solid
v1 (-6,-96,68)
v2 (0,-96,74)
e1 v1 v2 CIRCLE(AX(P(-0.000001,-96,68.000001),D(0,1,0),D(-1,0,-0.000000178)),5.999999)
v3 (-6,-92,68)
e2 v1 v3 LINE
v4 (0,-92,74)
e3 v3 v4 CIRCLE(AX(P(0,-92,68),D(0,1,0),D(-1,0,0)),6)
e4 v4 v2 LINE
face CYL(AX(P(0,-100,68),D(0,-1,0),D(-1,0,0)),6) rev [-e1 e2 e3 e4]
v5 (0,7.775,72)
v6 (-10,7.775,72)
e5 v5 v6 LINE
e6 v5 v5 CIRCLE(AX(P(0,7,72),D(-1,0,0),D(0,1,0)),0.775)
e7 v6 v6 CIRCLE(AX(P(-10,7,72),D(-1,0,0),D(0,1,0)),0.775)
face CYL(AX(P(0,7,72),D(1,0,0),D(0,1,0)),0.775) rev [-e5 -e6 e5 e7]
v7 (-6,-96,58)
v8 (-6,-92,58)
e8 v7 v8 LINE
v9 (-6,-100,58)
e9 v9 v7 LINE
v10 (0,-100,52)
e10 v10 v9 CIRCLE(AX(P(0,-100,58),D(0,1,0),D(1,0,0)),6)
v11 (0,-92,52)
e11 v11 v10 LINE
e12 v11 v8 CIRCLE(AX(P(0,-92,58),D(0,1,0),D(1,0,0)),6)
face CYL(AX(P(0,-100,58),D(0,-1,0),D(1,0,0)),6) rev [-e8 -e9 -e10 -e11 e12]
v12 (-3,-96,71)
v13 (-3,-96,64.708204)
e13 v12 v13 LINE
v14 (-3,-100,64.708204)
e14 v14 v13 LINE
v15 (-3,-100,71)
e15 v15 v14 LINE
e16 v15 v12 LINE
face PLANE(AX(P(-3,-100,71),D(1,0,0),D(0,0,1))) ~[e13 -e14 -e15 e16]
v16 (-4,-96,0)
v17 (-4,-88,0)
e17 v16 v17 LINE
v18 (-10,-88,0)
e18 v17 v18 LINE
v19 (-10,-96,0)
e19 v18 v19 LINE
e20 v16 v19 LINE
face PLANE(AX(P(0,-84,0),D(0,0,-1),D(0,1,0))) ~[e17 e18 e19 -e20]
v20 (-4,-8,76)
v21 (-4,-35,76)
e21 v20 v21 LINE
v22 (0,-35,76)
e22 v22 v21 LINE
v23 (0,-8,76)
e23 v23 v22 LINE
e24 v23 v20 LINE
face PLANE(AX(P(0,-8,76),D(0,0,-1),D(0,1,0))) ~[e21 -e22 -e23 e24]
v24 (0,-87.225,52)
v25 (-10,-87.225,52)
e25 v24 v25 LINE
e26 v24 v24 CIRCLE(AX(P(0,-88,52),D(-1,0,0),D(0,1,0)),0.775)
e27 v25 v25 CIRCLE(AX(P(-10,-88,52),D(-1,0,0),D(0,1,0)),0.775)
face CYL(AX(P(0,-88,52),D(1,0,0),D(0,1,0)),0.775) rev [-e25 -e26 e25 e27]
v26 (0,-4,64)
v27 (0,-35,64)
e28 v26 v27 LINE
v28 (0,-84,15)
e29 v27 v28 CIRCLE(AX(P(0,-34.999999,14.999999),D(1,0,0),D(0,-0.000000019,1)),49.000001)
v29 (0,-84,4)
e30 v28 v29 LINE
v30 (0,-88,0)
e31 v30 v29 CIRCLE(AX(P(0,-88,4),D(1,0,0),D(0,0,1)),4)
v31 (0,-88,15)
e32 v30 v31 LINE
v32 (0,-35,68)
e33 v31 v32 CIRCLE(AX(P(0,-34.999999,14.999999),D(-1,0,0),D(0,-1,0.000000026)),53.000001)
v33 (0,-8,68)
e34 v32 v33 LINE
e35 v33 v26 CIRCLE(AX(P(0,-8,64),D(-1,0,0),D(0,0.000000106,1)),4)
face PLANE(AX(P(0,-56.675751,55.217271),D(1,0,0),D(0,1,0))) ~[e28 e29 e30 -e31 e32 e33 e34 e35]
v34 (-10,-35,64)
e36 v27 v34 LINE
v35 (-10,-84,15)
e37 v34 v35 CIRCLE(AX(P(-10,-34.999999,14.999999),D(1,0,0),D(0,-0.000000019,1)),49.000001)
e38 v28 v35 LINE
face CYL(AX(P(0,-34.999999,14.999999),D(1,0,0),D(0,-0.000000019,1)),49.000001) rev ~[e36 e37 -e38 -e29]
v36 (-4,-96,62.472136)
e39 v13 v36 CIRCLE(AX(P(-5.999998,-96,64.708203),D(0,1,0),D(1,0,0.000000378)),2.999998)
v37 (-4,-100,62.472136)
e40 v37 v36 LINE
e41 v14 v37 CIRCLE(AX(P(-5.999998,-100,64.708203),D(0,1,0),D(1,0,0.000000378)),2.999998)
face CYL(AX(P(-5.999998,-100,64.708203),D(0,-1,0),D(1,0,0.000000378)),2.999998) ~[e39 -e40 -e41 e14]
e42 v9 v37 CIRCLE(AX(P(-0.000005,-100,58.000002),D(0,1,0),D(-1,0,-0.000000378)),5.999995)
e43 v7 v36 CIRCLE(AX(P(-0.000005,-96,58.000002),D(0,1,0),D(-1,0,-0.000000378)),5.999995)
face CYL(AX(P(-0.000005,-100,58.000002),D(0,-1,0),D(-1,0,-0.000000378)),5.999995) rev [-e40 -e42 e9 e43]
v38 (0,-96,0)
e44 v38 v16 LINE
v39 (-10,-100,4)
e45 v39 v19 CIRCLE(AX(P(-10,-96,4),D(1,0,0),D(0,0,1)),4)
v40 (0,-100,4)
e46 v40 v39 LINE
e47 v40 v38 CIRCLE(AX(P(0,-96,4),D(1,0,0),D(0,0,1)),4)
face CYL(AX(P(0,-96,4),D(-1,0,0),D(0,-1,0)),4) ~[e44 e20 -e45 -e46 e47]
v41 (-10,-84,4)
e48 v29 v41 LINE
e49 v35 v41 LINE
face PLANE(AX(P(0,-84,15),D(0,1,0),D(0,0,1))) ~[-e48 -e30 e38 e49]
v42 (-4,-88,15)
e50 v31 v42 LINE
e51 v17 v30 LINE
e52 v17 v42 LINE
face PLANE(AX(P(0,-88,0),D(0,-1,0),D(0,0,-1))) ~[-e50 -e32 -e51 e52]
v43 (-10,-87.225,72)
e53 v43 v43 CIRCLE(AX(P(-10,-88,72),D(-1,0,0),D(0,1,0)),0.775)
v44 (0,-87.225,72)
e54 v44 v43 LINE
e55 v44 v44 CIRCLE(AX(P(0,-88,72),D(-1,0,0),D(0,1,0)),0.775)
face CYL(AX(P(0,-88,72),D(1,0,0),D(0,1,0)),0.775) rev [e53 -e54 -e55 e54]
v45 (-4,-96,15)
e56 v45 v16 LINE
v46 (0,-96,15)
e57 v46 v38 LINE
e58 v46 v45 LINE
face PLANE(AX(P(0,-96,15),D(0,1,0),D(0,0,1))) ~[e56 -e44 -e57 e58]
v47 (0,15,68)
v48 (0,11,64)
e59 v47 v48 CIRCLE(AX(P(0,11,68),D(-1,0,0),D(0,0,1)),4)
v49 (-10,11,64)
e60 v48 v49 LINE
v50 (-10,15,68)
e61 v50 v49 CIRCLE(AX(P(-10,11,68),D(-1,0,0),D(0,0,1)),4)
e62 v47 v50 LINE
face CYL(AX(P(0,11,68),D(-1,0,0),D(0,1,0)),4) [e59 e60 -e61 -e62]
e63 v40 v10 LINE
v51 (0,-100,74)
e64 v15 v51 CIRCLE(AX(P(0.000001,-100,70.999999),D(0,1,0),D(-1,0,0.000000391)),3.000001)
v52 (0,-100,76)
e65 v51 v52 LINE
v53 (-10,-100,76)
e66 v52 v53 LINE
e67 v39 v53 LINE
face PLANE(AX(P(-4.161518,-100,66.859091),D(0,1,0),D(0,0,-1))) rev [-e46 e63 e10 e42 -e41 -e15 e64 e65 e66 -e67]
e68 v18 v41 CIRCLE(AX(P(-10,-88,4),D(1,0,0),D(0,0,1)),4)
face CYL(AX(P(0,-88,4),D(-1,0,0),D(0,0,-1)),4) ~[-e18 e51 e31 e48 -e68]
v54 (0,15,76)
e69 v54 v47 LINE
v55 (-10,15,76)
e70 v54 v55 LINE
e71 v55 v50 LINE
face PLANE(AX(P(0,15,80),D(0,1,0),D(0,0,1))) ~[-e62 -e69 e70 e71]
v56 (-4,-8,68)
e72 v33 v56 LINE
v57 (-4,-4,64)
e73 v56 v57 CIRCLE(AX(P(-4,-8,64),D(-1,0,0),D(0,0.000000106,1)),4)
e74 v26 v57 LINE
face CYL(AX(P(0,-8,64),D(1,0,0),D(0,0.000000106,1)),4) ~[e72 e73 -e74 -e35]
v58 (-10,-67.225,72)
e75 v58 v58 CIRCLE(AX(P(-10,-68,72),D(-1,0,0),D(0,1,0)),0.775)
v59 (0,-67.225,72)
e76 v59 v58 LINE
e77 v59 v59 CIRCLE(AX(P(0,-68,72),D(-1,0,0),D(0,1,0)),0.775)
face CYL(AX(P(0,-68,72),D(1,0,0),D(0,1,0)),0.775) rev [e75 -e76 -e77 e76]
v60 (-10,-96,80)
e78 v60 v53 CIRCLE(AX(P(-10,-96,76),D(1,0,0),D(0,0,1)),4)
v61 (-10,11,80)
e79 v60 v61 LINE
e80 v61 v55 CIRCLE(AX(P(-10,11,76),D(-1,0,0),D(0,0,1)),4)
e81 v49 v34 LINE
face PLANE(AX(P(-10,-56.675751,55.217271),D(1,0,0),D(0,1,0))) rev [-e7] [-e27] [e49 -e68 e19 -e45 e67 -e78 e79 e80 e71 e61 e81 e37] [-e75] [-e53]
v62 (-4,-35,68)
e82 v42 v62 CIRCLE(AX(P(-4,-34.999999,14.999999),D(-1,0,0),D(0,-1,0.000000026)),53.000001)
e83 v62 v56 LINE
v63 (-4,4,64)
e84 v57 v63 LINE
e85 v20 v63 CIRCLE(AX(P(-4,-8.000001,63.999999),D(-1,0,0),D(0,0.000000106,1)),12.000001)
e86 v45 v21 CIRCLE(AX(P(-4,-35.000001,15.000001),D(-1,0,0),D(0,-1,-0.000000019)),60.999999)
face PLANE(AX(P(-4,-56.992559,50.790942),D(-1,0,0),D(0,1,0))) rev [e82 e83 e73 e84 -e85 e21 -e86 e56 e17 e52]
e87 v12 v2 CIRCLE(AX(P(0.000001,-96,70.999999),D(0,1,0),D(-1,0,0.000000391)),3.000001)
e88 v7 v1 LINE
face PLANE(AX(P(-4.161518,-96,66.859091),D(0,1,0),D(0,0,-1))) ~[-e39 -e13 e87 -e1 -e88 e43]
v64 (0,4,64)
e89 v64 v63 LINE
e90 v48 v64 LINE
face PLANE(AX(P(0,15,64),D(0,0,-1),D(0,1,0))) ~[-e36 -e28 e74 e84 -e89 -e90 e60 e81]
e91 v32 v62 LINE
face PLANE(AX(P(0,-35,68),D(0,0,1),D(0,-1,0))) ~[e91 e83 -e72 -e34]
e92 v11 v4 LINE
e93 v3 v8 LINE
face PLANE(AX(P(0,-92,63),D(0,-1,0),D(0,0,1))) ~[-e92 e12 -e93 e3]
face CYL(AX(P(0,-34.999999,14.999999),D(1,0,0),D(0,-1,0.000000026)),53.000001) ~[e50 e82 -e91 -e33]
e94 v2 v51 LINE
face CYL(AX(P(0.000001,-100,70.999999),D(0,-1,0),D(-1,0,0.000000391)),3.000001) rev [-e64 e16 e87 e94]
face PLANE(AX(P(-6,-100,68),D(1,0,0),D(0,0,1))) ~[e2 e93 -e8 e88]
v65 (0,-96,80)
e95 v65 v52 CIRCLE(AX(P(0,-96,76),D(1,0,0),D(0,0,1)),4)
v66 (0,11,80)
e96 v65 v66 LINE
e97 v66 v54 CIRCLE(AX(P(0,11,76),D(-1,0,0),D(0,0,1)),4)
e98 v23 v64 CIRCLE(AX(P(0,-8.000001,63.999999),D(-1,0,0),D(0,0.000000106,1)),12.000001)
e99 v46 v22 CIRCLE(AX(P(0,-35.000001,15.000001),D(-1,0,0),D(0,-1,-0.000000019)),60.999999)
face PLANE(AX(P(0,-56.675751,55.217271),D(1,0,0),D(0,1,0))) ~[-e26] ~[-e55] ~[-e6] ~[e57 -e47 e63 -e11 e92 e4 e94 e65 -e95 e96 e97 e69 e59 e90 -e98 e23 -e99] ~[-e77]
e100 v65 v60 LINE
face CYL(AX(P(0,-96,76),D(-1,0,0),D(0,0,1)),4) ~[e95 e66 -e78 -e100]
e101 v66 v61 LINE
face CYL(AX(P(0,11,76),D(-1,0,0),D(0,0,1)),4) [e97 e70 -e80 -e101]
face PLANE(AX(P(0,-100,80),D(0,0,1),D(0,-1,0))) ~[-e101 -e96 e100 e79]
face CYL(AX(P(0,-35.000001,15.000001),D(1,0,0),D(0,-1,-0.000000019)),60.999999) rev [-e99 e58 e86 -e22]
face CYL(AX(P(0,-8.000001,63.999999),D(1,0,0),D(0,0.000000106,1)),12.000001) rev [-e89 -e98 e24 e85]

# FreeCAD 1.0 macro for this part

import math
import FreeCAD as App
import Part
import Sketcher


def edges_at(feature, points):
    """Names of the edges that pass closest to the given points."""
    edges = feature.Shape.Edges
    near = lambda p: min(range(len(edges)), key=lambda i: edges[i].distToShape(Part.Vertex(*p))[0])
    return sorted({f"Edge{near(p) + 1}" for p in points})

doc = App.newDocument("Part")
body = doc.addObject("PartDesign::Body", "Body")

sketch1 = body.newObject("Sketcher::SketchObject", "Sketch")
sketch1.AttachmentSupport = (doc.getObject("YZ_Plane"), [""])
sketch1.MapMode = "FlatFace"
sketch1.addGeometry([
    Part.LineSegment(App.Vector(15, 80, 0), App.Vector(-100, 80, 0)),
    Part.LineSegment(App.Vector(-100, 80, 0), App.Vector(-100, 0, 0)),
    Part.LineSegment(App.Vector(-100, 0, 0), App.Vector(-84, 0, 0)),
    Part.LineSegment(App.Vector(-84, 0, 0), App.Vector(-84, 15, 0)),
    Part.ArcOfCircle(Part.Circle(App.Vector(-34.999999, 14.999999, 0), App.Vector(0, 0, 1), 49.000001), math.radians(90.000001), math.radians(179.999999)),
    Part.LineSegment(App.Vector(-35, 64, 0), App.Vector(15, 64, 0)),
    Part.LineSegment(App.Vector(15, 64, 0), App.Vector(15, 80, 0)),
], False)
sketch1.addConstraint([
    Sketcher.Constraint("Coincident", 0, 2, 1, 1),
    Sketcher.Constraint("Coincident", 1, 2, 2, 1),
    Sketcher.Constraint("Coincident", 2, 2, 3, 1),
    Sketcher.Constraint("Tangent", 3, 2, 4, 2),
    Sketcher.Constraint("Tangent", 4, 1, 5, 1),
    Sketcher.Constraint("Coincident", 5, 2, 6, 1),
    Sketcher.Constraint("Coincident", 6, 2, 0, 1),
    Sketcher.Constraint("Horizontal", 0),
    Sketcher.Constraint("Vertical", 1),
    Sketcher.Constraint("Horizontal", 2),
    Sketcher.Constraint("Vertical", 3),
    Sketcher.Constraint("Horizontal", 5),
    Sketcher.Constraint("Vertical", 6),
    Sketcher.Constraint("PointOnObject", 1, 2, -1),
    Sketcher.Constraint("Equal", 2, 6),
    Sketcher.Constraint("Radius", 4, 49.000001),
    Sketcher.Constraint("DistanceX", 0, 2, 0, 1, 115.0),
    Sketcher.Constraint("DistanceX", 2, 1, 2, 2, 16.0),
    Sketcher.Constraint("DistanceY", 1, 2, 1, 1, 80.0),
    Sketcher.Constraint("DistanceX", 4, 3, -1, 1, 34.999999),
])
pad1 = body.newObject("PartDesign::Pad", "Pad")
pad1.Profile = sketch1
pad1.Length = 10

sketch2 = body.newObject("Sketcher::SketchObject", "Sketch001")
sketch2.AttachmentSupport = (doc.getObject("YZ_Plane"), [""])
sketch2.MapMode = "FlatFace"
sketch2.addGeometry([
    Part.LineSegment(App.Vector(-88, 15, 0), App.Vector(-88, 0, 0)),
    Part.LineSegment(App.Vector(-88, 0, 0), App.Vector(-96, 0, 0)),
    Part.LineSegment(App.Vector(-96, 0, 0), App.Vector(-96, 15, 0)),
    Part.ArcOfCircle(Part.Circle(App.Vector(-35.000001, 15.000001, 0), App.Vector(0, 0, 1), 60.999999), math.radians(89.999999), math.radians(180.000001)),
    Part.LineSegment(App.Vector(-35, 76, 0), App.Vector(-8, 76, 0)),
    Part.ArcOfCircle(Part.Circle(App.Vector(-8.000001, 63.999999, 0), App.Vector(0, 0, 1), 12.000001), math.radians(0.000006), math.radians(89.999994)),
    Part.LineSegment(App.Vector(4, 64, 0), App.Vector(-4, 64, 0)),
    Part.ArcOfCircle(Part.Circle(App.Vector(-8, 64, 0), App.Vector(0, 0, 1), 4), math.radians(0.000006), math.radians(89.999994)),
    Part.LineSegment(App.Vector(-8, 68, 0), App.Vector(-35, 68, 0)),
    Part.ArcOfCircle(Part.Circle(App.Vector(-34.999999, 14.999999, 0), App.Vector(0, 0, 1), 53.000001), math.radians(90.000001), math.radians(179.999999)),
], False)
sketch2.addConstraint([
    Sketcher.Constraint("Coincident", 0, 2, 1, 1),
    Sketcher.Constraint("Coincident", 1, 2, 2, 1),
    Sketcher.Constraint("Tangent", 2, 2, 3, 2),
    Sketcher.Constraint("Tangent", 3, 1, 4, 1),
    Sketcher.Constraint("Tangent", 4, 2, 5, 2),
    Sketcher.Constraint("Coincident", 5, 1, 6, 1),
    Sketcher.Constraint("Coincident", 6, 2, 7, 1),
    Sketcher.Constraint("Tangent", 7, 2, 8, 1),
    Sketcher.Constraint("Tangent", 8, 2, 9, 1),
    Sketcher.Constraint("Tangent", 9, 2, 0, 1),
    Sketcher.Constraint("Vertical", 0),
    Sketcher.Constraint("Horizontal", 1),
    Sketcher.Constraint("Vertical", 2),
    Sketcher.Constraint("Horizontal", 4),
    Sketcher.Constraint("Horizontal", 6),
    Sketcher.Constraint("Horizontal", 8),
    Sketcher.Constraint("Coincident", 7, 3, 5, 3),
    Sketcher.Constraint("Coincident", 9, 3, 3, 3),
    Sketcher.Constraint("PointOnObject", 0, 2, -1),
    Sketcher.Constraint("Horizontal", 7, 3, 5, 1),
    Sketcher.Constraint("Radius", 3, 60.999999),
    Sketcher.Constraint("Radius", 5, 12.000001),
    Sketcher.Constraint("Radius", 7, 4.0),
    Sketcher.Constraint("DistanceX", 4, 1, 4, 2, 27.0),
    Sketcher.Constraint("DistanceY", 0, 2, 0, 1, 15.0),
    Sketcher.Constraint("DistanceX", 3, 3, -1, 1, 35.000001),
])
pocket1 = body.newObject("PartDesign::Pocket", "Pocket")
pocket1.Profile = sketch2
pocket1.Length = 4
pocket1.Reversed = True

sketch3 = body.newObject("Sketcher::SketchObject", "Sketch002")
sketch3.AttachmentSupport = (doc.getObject("YZ_Plane"), [""])
sketch3.MapMode = "FlatFace"
sketch3.addGeometry([
    Part.Circle(App.Vector(-88, 52, 0), App.Vector(0, 0, 1), 0.775),
    Part.Circle(App.Vector(-68, 72, 0), App.Vector(0, 0, 1), 0.775),
    Part.Circle(App.Vector(-88, 72, 0), App.Vector(0, 0, 1), 0.775),
    Part.Circle(App.Vector(7, 72, 0), App.Vector(0, 0, 1), 0.775),
], False)
sketch3.addConstraint([
    Sketcher.Constraint("Equal", 0, 1),
    Sketcher.Constraint("Equal", 1, 2),
    Sketcher.Constraint("Equal", 2, 3),
    Sketcher.Constraint("Horizontal", 1, 3, 2, 3),
    Sketcher.Constraint("Horizontal", 2, 3, 3, 3),
    Sketcher.Constraint("Vertical", 0, 3, 2, 3),
    Sketcher.Constraint("Diameter", 0, 1.55),
    Sketcher.Constraint("DistanceX", 0, 3, -1, 1, 88.0),
    Sketcher.Constraint("DistanceY", -1, 1, 0, 3, 52.0),
    Sketcher.Constraint("DistanceX", 1, 3, -1, 1, 68.0),
    Sketcher.Constraint("DistanceY", -1, 1, 1, 3, 72.0),
    Sketcher.Constraint("DistanceX", -1, 1, 3, 3, 7.0),
])
pocket2 = body.newObject("PartDesign::Pocket", "Pocket001")
pocket2.Profile = sketch3
pocket2.Type = "ThroughAll"
pocket2.Reversed = True
doc.recompute()

fillet = body.newObject("PartDesign::Fillet", "Fillet")
fillet.Base = (pocket2, edges_at(pocket2, [
    (5, 15, 64),
    (5, 15, 80),
    (5, -100, 80),
    (5, -100, 0),
    (5, -84, 0),
]))
fillet.Radius = 4

sketch4 = body.newObject("Sketcher::SketchObject", "Sketch003")
sketch4.AttachmentSupport = (doc.getObject("XZ_Plane"), [""])
sketch4.MapMode = "FlatFace"
sketch4.AttachmentOffset = App.Placement(App.Vector(0, 0, 100), App.Rotation())
sketch4.addGeometry([
    Part.ArcOfCircle(Part.Circle(App.Vector(0, 68, 0), App.Vector(0, 0, 1), 6), math.radians(0), math.radians(180)),
    Part.LineSegment(App.Vector(-6, 68, 0), App.Vector(-6, 58, 0)),
    Part.ArcOfCircle(Part.Circle(App.Vector(0, 58, 0), App.Vector(0, 0, 1), 6), math.radians(180), math.radians(360)),
    Part.LineSegment(App.Vector(6, 58, 0), App.Vector(6, 68, 0)),
], False)
sketch4.addConstraint([
    Sketcher.Constraint("Tangent", 0, 2, 1, 1),
    Sketcher.Constraint("Tangent", 1, 2, 2, 1),
    Sketcher.Constraint("Tangent", 2, 2, 3, 1),
    Sketcher.Constraint("Tangent", 3, 2, 0, 1),
    Sketcher.Constraint("Vertical", 1),
    Sketcher.Constraint("Vertical", 3),
    Sketcher.Constraint("PointOnObject", 0, 3, -2),
    Sketcher.Constraint("Radius", 0, 6.0),
    Sketcher.Constraint("DistanceY", 1, 2, 1, 1, 10.0),
    Sketcher.Constraint("DistanceY", -1, 1, 0, 3, 68.0),
])
pocket3 = body.newObject("PartDesign::Pocket", "Pocket002")
pocket3.Profile = sketch4
pocket3.Length = 8

sketch5 = body.newObject("Sketcher::SketchObject", "Sketch004")
sketch5.AttachmentSupport = (doc.getObject("XZ_Plane"), [""])
sketch5.MapMode = "FlatFace"
sketch5.AttachmentOffset = App.Placement(App.Vector(0, 0, 100), App.Rotation())
sketch5.addGeometry([
    Part.ArcOfCircle(Part.Circle(App.Vector(-0.000001, 70.999999, 0), App.Vector(0, 0, 1), 3.000001), math.radians(0.000022), math.radians(89.999978)),
    Part.LineSegment(App.Vector(3, 71, 0), App.Vector(3, 64.708204, 0)),
    Part.ArcOfCircle(Part.Circle(App.Vector(5.999998, 64.708203, 0), App.Vector(0, 0, 1), 2.999998), math.radians(179.999978), math.radians(228.189706)),
    Part.ArcOfCircle(Part.Circle(App.Vector(0.000005, 58.000002, 0), App.Vector(0, 0, 1), 5.999995), math.radians(-0.000022), math.radians(48.189706)),
    Part.LineSegment(App.Vector(6, 58, 0), App.Vector(6, 68, 0)),
    Part.ArcOfCircle(Part.Circle(App.Vector(0.000001, 68.000001, 0), App.Vector(0, 0, 1), 5.999999), math.radians(-0.00001), math.radians(90.00001)),
], False)
sketch5.addConstraint([
    Sketcher.Constraint("Tangent", 0, 1, 1, 1),
    Sketcher.Constraint("Tangent", 1, 2, 2, 1),
    Sketcher.Constraint("Tangent", 2, 2, 3, 2),
    Sketcher.Constraint("Tangent", 3, 1, 4, 1),
    Sketcher.Constraint("Tangent", 4, 2, 5, 1),
    Sketcher.Constraint("Tangent", 5, 2, 0, 2),
    Sketcher.Constraint("Vertical", 1),
    Sketcher.Constraint("Vertical", 4),
    Sketcher.Constraint("PointOnObject", 0, 3, -2),
    Sketcher.Constraint("PointOnObject", 5, 3, -2),
    Sketcher.Constraint("Radius", 0, 3.000001),
    Sketcher.Constraint("Radius", 5, 5.999999),
    Sketcher.Constraint("DistanceY", 4, 1, 4, 2, 10.0),
    Sketcher.Constraint("DistanceY", -1, 1, 0, 3, 70.999999),
    Sketcher.Constraint("DistanceX", -1, 1, 2, 2, 4.0),
    Sketcher.Constraint("DistanceX", 0, 3, 2, 3, 5.999999),
])
pad2 = body.newObject("PartDesign::Pad", "Pad001")
pad2.Profile = sketch5
pad2.Length = 4
pad2.Reversed = True
body2 = doc.addObject("PartDesign::Body", "Body001")
doc.recompute()

mirroring = doc.addObject("Part::Mirroring", "Mirroring")
mirroring.Source = body
mirroring.Base = App.Vector(0, 0, 0)
mirroring.Normal = App.Vector(-1, 0, 0)
body2.BaseFeature = mirroring
doc.recompute()
body.Visibility = False
mirroring.Visibility = False

doc.recompute()
